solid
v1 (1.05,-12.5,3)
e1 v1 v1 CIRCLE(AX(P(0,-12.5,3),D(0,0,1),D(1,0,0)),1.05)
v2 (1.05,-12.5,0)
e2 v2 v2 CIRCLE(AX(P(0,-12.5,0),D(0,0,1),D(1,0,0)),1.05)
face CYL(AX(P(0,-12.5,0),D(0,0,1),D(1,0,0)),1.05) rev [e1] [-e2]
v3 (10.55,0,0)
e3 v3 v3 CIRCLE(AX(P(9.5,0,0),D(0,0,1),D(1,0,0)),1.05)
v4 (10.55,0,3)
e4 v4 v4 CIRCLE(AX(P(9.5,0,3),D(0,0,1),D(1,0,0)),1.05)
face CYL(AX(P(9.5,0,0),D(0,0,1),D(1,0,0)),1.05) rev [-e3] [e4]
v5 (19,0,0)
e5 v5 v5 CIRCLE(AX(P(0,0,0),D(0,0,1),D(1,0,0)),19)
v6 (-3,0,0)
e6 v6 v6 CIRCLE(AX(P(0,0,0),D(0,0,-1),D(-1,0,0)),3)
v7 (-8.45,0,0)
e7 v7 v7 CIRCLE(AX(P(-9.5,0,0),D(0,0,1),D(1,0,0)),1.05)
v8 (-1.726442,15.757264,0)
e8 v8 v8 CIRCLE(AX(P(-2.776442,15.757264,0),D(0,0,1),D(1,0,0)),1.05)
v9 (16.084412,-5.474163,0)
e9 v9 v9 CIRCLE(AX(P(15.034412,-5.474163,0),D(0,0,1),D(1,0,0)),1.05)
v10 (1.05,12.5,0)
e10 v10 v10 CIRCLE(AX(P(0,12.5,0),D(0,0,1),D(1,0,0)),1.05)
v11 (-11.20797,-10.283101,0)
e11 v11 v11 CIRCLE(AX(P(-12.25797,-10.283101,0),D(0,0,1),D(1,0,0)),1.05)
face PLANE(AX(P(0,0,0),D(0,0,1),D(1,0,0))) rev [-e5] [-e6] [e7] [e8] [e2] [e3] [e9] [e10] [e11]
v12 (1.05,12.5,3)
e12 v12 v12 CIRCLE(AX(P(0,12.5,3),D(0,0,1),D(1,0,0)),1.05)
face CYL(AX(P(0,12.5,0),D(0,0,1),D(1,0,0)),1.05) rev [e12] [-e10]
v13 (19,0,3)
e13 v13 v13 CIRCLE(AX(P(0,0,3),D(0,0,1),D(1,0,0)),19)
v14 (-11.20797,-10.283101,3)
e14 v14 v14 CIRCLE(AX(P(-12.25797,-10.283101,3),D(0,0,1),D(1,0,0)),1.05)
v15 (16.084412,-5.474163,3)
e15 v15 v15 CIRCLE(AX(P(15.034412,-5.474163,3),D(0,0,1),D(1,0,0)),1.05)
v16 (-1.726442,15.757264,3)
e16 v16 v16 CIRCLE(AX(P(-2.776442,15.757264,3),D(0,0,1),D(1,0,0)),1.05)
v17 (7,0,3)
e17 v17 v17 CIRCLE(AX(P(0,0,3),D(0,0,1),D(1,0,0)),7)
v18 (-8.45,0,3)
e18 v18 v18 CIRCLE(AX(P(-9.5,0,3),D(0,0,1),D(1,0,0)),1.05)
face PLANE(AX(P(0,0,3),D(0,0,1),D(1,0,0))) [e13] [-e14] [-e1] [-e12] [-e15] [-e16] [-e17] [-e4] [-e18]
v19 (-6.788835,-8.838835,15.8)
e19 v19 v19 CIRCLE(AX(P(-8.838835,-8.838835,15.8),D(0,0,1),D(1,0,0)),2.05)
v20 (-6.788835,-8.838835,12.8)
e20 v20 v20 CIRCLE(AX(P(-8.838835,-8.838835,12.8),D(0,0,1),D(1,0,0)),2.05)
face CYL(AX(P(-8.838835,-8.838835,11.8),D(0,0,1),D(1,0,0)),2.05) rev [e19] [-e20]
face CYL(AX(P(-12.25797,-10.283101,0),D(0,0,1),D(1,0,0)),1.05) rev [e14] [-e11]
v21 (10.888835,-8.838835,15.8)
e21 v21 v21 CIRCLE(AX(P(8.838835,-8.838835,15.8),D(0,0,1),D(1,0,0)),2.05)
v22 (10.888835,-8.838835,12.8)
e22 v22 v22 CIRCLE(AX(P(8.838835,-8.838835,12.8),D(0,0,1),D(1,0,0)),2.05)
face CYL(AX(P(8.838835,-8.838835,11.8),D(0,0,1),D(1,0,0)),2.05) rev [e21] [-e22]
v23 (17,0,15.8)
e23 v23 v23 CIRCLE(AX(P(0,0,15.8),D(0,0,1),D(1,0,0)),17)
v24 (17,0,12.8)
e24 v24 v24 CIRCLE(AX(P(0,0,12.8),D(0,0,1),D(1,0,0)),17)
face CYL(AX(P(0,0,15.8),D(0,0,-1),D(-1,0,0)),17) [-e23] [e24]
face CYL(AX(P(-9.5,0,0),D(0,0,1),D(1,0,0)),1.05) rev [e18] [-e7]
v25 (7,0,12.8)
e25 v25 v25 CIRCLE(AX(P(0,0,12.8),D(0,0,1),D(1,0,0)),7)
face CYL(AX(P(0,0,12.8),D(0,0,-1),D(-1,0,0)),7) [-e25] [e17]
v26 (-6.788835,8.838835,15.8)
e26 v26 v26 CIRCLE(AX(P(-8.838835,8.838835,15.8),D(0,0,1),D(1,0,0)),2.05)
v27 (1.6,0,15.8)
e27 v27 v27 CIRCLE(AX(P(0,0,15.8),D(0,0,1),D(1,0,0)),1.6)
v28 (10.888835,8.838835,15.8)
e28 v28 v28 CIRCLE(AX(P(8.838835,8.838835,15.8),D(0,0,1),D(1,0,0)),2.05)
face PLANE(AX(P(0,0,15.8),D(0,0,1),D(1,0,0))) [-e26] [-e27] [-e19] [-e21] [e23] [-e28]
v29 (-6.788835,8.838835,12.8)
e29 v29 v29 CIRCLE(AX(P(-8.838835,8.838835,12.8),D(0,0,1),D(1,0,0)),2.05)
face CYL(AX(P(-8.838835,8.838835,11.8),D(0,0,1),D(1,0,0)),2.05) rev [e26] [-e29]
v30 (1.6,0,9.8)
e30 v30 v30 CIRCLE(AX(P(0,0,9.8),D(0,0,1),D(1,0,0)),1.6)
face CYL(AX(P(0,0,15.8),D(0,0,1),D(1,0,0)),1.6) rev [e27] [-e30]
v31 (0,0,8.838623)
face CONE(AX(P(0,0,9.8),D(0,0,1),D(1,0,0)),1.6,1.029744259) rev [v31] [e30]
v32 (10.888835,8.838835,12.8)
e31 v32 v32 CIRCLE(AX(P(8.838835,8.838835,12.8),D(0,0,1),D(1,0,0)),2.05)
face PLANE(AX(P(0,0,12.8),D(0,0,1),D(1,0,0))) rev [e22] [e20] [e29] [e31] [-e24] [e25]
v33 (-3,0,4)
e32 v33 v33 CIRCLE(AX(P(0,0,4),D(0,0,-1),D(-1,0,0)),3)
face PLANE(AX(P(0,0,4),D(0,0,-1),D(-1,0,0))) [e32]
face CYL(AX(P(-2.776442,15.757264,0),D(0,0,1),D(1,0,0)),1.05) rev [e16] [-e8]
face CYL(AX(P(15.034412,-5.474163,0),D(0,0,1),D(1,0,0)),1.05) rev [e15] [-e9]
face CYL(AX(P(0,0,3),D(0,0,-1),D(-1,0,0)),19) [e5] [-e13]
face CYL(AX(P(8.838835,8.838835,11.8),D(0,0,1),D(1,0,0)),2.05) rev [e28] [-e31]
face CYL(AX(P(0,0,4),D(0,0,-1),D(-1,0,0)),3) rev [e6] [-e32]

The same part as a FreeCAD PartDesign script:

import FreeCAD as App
import Part
import Sketcher
from FreeCAD import Vector
Q = App.Units.Quantity

doc = App.newDocument("Part")
params = doc.addObject("Spreadsheet::Sheet", "Params")
for row, (alias, value) in enumerate([
    ("sketch1_diameter", "38 mm"),
    ("pad1_length", "3 mm"),
    ("sketch2_diameter", "2.1 mm"),
    ("sketch3_diameter", "14 mm"),
    ("pad2_length", "9.8 mm"),
    ("sketch4_diameter", "34 mm"),
    ("pad3_length", "3 mm"),
    ("sketch5_diameter", "3.2 mm"),
    ("hole_diameter", "3.2 mm"),
    ("hole_depth", "6 mm"),
    ("sketch6_diameter", "6 mm"),
    ("pocket2_length", "4 mm"),
    ("sketch7_diameter", "4.1 mm"),
    ("pocket3_length", "4 mm"),
], start=1):
    params.set(f"A{row}", alias)
    params.set(f"B{row}", "=" + value)
    params.setAlias(f"B{row}", alias)

body = doc.addObject("PartDesign::Body", "Body")

# Sketch on XY plane
sketch1 = doc.addObject("Sketcher::SketchObject", "Sketch")
body.addObject(sketch1)
sketch1.AttachmentSupport = (doc.XY_Plane, [""])
sketch1.MapMode = "FlatFace"
sketch1.addGeometry(Part.Circle(Vector(0, 0, 0), Vector(0, 0, 1), 19), False)
sketch1.addConstraint([
    Sketcher.Constraint("Coincident", 0, 3, -1, 1),
    Sketcher.Constraint("Diameter", 0, Q("38 mm")),
])
sketch1.setExpression("Constraints[1]", "Params.sketch1_diameter")
pad1 = doc.addObject("PartDesign::Pad", "Pad")
body.addObject(pad1)
pad1.Profile = sketch1
pad1.setExpression("Length", "Params.pad1_length")

# Sketch on XY plane
sketch2 = doc.addObject("Sketcher::SketchObject", "Sketch001")
body.addObject(sketch2)
sketch2.AttachmentSupport = (doc.XY_Plane, [""])
sketch2.MapMode = "FlatFace"
sketch2.AttachmentOffset = App.Placement(Vector(0, 0, 3), App.Rotation())
sketch2.addGeometry([
    Part.Circle(Vector(0, 12.5, 0), Vector(0, 0, 1), 1.1),  # 0
    Part.Circle(Vector(-9.5, 0, 0), Vector(0, 0, 1), 1.1),  # 1
    Part.Circle(Vector(9.5, 0, 0), Vector(0, 0, 1), 1.1),  # 2
    Part.Circle(Vector(0, -12.5, 0), Vector(0, 0, 1), 1.1),  # 3
    Part.Circle(Vector(-2.8, 15.8, 0), Vector(0, 0, 1), 1.1),  # 4
    Part.Circle(Vector(15, -5.5, 0), Vector(0, 0, 1), 1.1),  # 5
    Part.Circle(Vector(-12.3, -10.3, 0), Vector(0, 0, 1), 1.1),  # 6
], False)
sketch2.addConstraint([
    Sketcher.Constraint("Equal", 0, 1),
    Sketcher.Constraint("Equal", 1, 2),
    Sketcher.Constraint("Equal", 2, 3),
    Sketcher.Constraint("Equal", 3, 4),
    Sketcher.Constraint("Equal", 4, 5),
    Sketcher.Constraint("Equal", 5, 6),
    Sketcher.Constraint("Symmetric", 1, 3, 2, 3, -1, 1),
    Sketcher.Constraint("Symmetric", 0, 3, 3, 3, -1, 1),
    Sketcher.Constraint("PointOnObject", 0, 3, -2),
    Sketcher.Constraint("PointOnObject", 1, 3, -1),
    Sketcher.Constraint("Diameter", 0, Q("2.1 mm")),
    Sketcher.Constraint("DistanceX", 1, 3, 2, 3, Q("19 mm")),
    Sketcher.Constraint("DistanceY", 3, 3, 0, 3, Q("25 mm")),
    Sketcher.Constraint("DistanceY", 6, 3, -1, 1, Q("10.283101 mm")),
    Sketcher.Constraint("DistanceX", 6, 3, -1, 1, Q("12.25797 mm")),
    Sketcher.Constraint("DistanceX", 6, 3, 5, 3, Q("27.292382 mm")),
    Sketcher.Constraint("DistanceY", 6, 3, 5, 3, Q("4.808939 mm")),
    Sketcher.Constraint("DistanceX", 4, 3, -1, 1, Q("2.776442 mm")),
    Sketcher.Constraint("DistanceY", -1, 1, 4, 3, Q("15.757264 mm")),
])
sketch2.setExpression("Constraints[10]", "Params.sketch2_diameter")
pocket1 = doc.addObject("PartDesign::Pocket", "Pocket")
body.addObject(pocket1)
pocket1.Profile = sketch2
pocket1.Type = "ThroughAll"

# Sketch on XY plane
sketch3 = doc.addObject("Sketcher::SketchObject", "Sketch002")
body.addObject(sketch3)
sketch3.AttachmentSupport = (doc.XY_Plane, [""])
sketch3.MapMode = "FlatFace"
sketch3.AttachmentOffset = App.Placement(Vector(0, 0, 3), App.Rotation())
sketch3.addGeometry(Part.Circle(Vector(0, 0, 0), Vector(0, 0, 1), 7), False)
sketch3.addConstraint([
    Sketcher.Constraint("Coincident", 0, 3, -1, 1),
    Sketcher.Constraint("Diameter", 0, Q("14 mm")),
])
sketch3.setExpression("Constraints[1]", "Params.sketch3_diameter")
pad2 = doc.addObject("PartDesign::Pad", "Pad001")
body.addObject(pad2)
pad2.Profile = sketch3
pad2.setExpression("Length", "Params.pad2_length")

# Sketch on XY plane
sketch4 = doc.addObject("Sketcher::SketchObject", "Sketch003")
body.addObject(sketch4)
sketch4.AttachmentSupport = (doc.XY_Plane, [""])
sketch4.MapMode = "FlatFace"
sketch4.AttachmentOffset = App.Placement(Vector(0, 0, 12.8), App.Rotation())
sketch4.addGeometry(Part.Circle(Vector(0, 0, 0), Vector(0, 0, 1), 17), False)
sketch4.addConstraint([
    Sketcher.Constraint("Coincident", 0, 3, -1, 1),
    Sketcher.Constraint("Diameter", 0, Q("34 mm")),
])
sketch4.setExpression("Constraints[1]", "Params.sketch4_diameter")
pad3 = doc.addObject("PartDesign::Pad", "Pad002")
body.addObject(pad3)
pad3.Profile = sketch4
pad3.setExpression("Length", "Params.pad3_length")

# Sketch on XY plane
sketch5 = doc.addObject("Sketcher::SketchObject", "Sketch004")
body.addObject(sketch5)
sketch5.AttachmentSupport = (doc.XY_Plane, [""])
sketch5.MapMode = "FlatFace"
sketch5.AttachmentOffset = App.Placement(Vector(0, 0, 15.8), App.Rotation())
sketch5.addGeometry(Part.Circle(Vector(0, 0, 0), Vector(0, 0, 1), 1.6), False)
sketch5.addConstraint([
    Sketcher.Constraint("Coincident", 0, 3, -1, 1),
    Sketcher.Constraint("Diameter", 0, Q("3.2 mm")),
])
sketch5.setExpression("Constraints[1]", "Params.sketch5_diameter")
doc.recompute()
hole = doc.addObject("PartDesign::Hole", "Hole")
body.addObject(hole)
hole.Profile = sketch5
hole.ThreadType = "None"
hole.setExpression("Diameter", "Params.hole_diameter")
hole.DepthType = "Dimension"
hole.setExpression("Depth", "Params.hole_depth")
hole.DrillPoint = "Angled"
hole.DrillPointAngle = 118

# Sketch on XY plane
sketch6 = doc.addObject("Sketcher::SketchObject", "Sketch005")
body.addObject(sketch6)
sketch6.AttachmentSupport = (doc.XY_Plane, [""])
sketch6.MapMode = "FlatFace"
sketch6.addGeometry(Part.Circle(Vector(0, 0, 0), Vector(0, 0, 1), 3), False)
sketch6.addConstraint([
    Sketcher.Constraint("Coincident", 0, 3, -1, 1),
    Sketcher.Constraint("Diameter", 0, Q("6 mm")),
])
sketch6.setExpression("Constraints[1]", "Params.sketch6_diameter")
pocket2 = doc.addObject("PartDesign::Pocket", "Pocket001")
body.addObject(pocket2)
pocket2.Profile = sketch6
pocket2.setExpression("Length", "Params.pocket2_length")
pocket2.Reversed = True

# Sketch on XY plane
sketch7 = doc.addObject("Sketcher::SketchObject", "Sketch006")
body.addObject(sketch7)
sketch7.AttachmentSupport = (doc.XY_Plane, [""])
sketch7.MapMode = "FlatFace"
sketch7.AttachmentOffset = App.Placement(Vector(0, 0, 15.8), App.Rotation())
sketch7.addGeometry([
    Part.Circle(Vector(8.8, 8.8, 0), Vector(0, 0, 1), 2),
    Part.Circle(Vector(8.8, -8.8, 0), Vector(0, 0, 1), 2),
    Part.Circle(Vector(-8.8, -8.8, 0), Vector(0, 0, 1), 2),
    Part.Circle(Vector(-8.8, 8.8, 0), Vector(0, 0, 1), 2),
], False)
sketch7.addConstraint([
    Sketcher.Constraint("Equal", 0, 1),
    Sketcher.Constraint("Equal", 1, 2),
    Sketcher.Constraint("Equal", 2, 3),
    Sketcher.Constraint("Symmetric", 0, 3, 2, 3, -1, 1),
    Sketcher.Constraint("Symmetric", 1, 3, 3, 3, -1, 1),
    Sketcher.Constraint("Symmetric", 1, 3, 2, 3, -2),
    Sketcher.Constraint("Diameter", 0, Q("4.1 mm")),
    Sketcher.Constraint("DistanceY", 1, 3, 0, 3, Q("17.67767 mm")),
    Sketcher.Constraint("DistanceX", 2, 3, 1, 3, Q("17.67767 mm")),
])
sketch7.setExpression("Constraints[6]", "Params.sketch7_diameter")
pocket3 = doc.addObject("PartDesign::Pocket", "Pocket002")
body.addObject(pocket3)
pocket3.Profile = sketch7
pocket3.setExpression("Length", "Params.pocket3_length")

doc.recompute()
